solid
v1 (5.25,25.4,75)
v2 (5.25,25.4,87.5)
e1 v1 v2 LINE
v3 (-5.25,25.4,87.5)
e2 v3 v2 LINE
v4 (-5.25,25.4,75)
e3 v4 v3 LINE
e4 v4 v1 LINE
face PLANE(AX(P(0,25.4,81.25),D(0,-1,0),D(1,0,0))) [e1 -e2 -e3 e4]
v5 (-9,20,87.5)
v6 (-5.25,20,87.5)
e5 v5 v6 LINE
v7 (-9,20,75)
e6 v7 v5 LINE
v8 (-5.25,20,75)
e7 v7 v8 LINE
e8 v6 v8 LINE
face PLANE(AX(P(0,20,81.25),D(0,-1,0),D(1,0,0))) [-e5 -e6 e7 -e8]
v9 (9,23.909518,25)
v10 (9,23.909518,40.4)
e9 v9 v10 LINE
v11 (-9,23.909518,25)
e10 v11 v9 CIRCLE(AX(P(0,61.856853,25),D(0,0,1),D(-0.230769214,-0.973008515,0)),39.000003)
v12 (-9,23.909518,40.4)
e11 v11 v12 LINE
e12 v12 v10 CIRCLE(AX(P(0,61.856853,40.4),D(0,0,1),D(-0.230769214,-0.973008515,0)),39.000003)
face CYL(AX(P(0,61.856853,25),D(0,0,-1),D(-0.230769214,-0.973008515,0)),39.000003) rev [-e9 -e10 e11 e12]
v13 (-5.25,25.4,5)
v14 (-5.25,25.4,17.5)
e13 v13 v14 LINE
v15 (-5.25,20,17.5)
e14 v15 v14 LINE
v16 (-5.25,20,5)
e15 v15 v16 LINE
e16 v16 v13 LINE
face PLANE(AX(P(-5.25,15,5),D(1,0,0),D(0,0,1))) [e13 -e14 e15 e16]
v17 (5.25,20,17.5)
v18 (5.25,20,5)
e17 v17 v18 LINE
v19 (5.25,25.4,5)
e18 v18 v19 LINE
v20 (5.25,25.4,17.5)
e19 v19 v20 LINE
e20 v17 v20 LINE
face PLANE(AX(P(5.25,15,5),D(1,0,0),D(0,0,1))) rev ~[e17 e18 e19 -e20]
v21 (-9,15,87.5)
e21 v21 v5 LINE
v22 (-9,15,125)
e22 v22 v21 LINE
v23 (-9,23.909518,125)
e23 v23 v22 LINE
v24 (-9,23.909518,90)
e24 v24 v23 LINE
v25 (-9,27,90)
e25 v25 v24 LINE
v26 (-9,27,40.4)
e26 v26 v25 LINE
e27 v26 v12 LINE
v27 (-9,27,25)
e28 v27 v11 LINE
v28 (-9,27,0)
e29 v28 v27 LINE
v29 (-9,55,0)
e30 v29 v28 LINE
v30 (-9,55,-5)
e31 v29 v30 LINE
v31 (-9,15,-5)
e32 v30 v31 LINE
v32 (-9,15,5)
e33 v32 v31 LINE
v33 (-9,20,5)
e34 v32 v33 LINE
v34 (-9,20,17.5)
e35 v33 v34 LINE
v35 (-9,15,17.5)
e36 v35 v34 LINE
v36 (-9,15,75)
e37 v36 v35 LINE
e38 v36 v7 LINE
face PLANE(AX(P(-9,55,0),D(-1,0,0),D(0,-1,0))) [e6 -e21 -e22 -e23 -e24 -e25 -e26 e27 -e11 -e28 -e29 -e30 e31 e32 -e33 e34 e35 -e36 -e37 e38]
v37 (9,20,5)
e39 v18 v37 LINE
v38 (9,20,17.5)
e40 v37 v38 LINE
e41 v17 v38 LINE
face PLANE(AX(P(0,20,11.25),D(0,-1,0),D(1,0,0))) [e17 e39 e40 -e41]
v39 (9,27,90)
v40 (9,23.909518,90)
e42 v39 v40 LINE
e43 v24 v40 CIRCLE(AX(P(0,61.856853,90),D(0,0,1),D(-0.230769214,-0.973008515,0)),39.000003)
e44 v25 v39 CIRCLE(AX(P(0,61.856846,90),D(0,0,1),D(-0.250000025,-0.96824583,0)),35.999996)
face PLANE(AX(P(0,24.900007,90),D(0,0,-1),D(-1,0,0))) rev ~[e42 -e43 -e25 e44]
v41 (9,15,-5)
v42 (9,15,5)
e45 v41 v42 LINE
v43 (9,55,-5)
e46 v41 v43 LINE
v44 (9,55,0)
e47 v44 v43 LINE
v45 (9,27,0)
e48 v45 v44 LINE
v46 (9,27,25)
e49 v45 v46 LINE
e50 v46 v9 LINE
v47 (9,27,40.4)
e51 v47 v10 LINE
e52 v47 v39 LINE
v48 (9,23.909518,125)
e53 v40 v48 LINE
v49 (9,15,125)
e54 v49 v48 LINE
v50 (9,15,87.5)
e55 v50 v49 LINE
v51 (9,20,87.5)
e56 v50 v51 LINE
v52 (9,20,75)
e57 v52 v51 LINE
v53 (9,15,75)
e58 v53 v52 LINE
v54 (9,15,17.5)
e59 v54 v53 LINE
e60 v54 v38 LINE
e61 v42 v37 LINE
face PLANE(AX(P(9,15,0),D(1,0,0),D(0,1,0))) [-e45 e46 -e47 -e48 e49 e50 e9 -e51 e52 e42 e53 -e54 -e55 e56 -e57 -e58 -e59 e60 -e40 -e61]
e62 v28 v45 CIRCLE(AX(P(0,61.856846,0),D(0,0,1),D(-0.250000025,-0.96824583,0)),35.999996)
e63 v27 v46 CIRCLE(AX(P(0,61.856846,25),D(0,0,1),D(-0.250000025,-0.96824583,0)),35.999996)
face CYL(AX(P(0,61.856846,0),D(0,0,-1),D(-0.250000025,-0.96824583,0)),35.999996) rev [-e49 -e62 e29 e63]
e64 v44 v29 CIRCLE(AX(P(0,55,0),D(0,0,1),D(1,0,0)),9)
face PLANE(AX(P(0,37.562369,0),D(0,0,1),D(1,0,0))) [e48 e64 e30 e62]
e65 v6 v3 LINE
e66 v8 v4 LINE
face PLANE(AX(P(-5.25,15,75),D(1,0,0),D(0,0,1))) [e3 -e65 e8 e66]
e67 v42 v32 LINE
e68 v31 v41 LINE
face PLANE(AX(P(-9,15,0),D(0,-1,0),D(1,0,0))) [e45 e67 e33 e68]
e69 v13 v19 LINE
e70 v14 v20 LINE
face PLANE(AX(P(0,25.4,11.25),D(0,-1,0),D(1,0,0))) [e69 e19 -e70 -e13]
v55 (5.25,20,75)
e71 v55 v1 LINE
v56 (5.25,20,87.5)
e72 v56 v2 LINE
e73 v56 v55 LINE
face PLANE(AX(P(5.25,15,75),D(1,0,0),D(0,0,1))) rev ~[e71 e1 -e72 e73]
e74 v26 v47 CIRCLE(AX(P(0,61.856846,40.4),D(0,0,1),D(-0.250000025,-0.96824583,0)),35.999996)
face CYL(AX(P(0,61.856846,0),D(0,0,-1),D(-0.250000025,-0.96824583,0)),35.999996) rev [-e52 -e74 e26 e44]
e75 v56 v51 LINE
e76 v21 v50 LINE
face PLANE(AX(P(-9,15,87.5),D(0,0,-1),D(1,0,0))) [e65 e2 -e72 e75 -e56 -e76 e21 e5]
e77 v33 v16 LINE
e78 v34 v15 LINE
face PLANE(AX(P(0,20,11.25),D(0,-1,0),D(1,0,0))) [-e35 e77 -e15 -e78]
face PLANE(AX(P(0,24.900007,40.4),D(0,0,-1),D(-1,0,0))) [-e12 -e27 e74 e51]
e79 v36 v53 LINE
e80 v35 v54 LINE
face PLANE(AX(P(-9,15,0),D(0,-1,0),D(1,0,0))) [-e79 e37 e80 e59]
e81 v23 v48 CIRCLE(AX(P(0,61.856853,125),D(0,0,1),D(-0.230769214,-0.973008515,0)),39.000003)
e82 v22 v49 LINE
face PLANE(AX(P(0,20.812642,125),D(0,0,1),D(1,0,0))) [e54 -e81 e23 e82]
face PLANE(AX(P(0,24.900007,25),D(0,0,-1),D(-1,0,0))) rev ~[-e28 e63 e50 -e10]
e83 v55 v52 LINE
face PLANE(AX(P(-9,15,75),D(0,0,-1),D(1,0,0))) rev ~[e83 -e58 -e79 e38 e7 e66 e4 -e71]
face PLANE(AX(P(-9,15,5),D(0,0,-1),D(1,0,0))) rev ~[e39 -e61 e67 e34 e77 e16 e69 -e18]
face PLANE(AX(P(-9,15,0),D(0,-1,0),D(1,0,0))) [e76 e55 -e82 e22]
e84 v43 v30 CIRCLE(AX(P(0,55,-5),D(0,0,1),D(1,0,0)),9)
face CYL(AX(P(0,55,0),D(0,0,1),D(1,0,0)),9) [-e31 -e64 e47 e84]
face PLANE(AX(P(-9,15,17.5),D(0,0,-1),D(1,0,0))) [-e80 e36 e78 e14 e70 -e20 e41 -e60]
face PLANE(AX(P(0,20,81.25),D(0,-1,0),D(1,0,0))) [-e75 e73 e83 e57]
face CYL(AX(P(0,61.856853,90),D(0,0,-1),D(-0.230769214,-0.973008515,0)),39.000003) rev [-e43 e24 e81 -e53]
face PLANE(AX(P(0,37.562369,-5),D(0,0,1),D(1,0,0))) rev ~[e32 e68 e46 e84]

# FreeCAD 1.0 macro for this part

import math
import FreeCAD as App
import Part
import Sketcher
Q = App.Units.Quantity


def add_polygon(sketch, points):
    """Adds a closed chain of lines whose ends are joined by coincident constraints."""
    first, n = sketch.GeometryCount, len(points)
    for a, b in zip(points, points[1:] + points[:1]):
        sketch.addGeometry(Part.LineSegment(App.Vector(*a, 0), App.Vector(*b, 0)), False)
    for i in range(n):
        sketch.addConstraint(Sketcher.Constraint("Coincident", first + i, 2, first + (i + 1) % n, 1))

doc = App.newDocument("Part")
params = doc.addObject("Spreadsheet::Sheet", "Params")
for row, (alias, value) in enumerate([
    ("sketch1_width", "18 mm"),
    ("sketch1_height", "12 mm"),
    ("pad1_length", "125 mm"),
    ("sketch2_radius", "9 mm"),
    ("sketch2_height", "40 mm"),
    ("pad2_length", "5 mm"),
    ("sketch3_width", "10.5 mm"),
    ("sketch3_height", "12.5 mm"),
    ("pocket1_length", "10.4 mm"),
    ("pocket2_length", "15.4 mm"),
    ("pocket3_length", "35 mm"),
    ("sketch6_width", "18 mm"),
    ("sketch6_height", "12.5 mm"),
    ("pocket4_length", "5 mm"),
], start=1):
    params.set(f"A{row}", alias)
    params.set(f"B{row}", "=" + value)
    params.setAlias(f"B{row}", alias)

body = doc.addObject("PartDesign::Body", "Body")

# Sketch on XY plane
sketch1 = body.newObject("Sketcher::SketchObject", "Sketch")
sketch1.AttachmentSupport = (doc.getObject("XY_Plane"), [""])
sketch1.MapMode = "FlatFace"
sketch1.addGeometry([
    Part.LineSegment(App.Vector(-9, 15, 0), App.Vector(9, 15, 0)),
    Part.LineSegment(App.Vector(9, 15, 0), App.Vector(9, 27, 0)),
    Part.ArcOfCircle(Part.Circle(App.Vector(0, 62, 0), App.Vector(0, 0, 1), 36), math.radians(-104), math.radians(-76)),
    Part.LineSegment(App.Vector(-9, 27, 0), App.Vector(-9, 15, 0)),
], False)
sketch1.addConstraint([
    Sketcher.Constraint("Coincident", 0, 2, 1, 1),
    Sketcher.Constraint("Coincident", 1, 2, 2, 2),
    Sketcher.Constraint("Coincident", 2, 1, 3, 1),
    Sketcher.Constraint("Coincident", 3, 2, 0, 1),
    Sketcher.Constraint("Horizontal", 0),
    Sketcher.Constraint("Vertical", 1),
    Sketcher.Constraint("Vertical", 3),
    Sketcher.Constraint("Symmetric", 1, 2, 2, 1, -2),
    Sketcher.Constraint("DistanceX", 0, 1, 0, 2, Q("18 mm")),
    Sketcher.Constraint("DistanceY", 1, 1, 1, 2, Q("12 mm")),
    Sketcher.Constraint("DistanceY", -1, 1, 0, 2, Q("15 mm")),
    Sketcher.Constraint("Radius", 2, Q("35.999996 mm")),
])
sketch1.setExpression("Constraints[8]", "Params.sketch1_width")
sketch1.setExpression("Constraints[9]", "Params.sketch1_height")
pad1 = body.newObject("PartDesign::Pad", "Pad")
pad1.Profile = sketch1
pad1.setExpression("Length", "Params.pad1_length")

# Sketch on XY plane
sketch2 = body.newObject("Sketcher::SketchObject", "Sketch001")
sketch2.AttachmentSupport = (doc.getObject("XY_Plane"), [""])
sketch2.MapMode = "FlatFace"
sketch2.addGeometry([
    Part.LineSegment(App.Vector(-9, 15, 0), App.Vector(9, 15, 0)),
    Part.LineSegment(App.Vector(9, 15, 0), App.Vector(9, 55, 0)),
    Part.ArcOfCircle(Part.Circle(App.Vector(0, 55, 0), App.Vector(0, 0, 1), 9), math.radians(0), math.radians(180)),
    Part.LineSegment(App.Vector(-9, 55, 0), App.Vector(-9, 15, 0)),
], False)
sketch2.addConstraint([
    Sketcher.Constraint("Coincident", 0, 2, 1, 1),
    Sketcher.Constraint("Tangent", 1, 2, 2, 1),
    Sketcher.Constraint("Tangent", 2, 2, 3, 1),
    Sketcher.Constraint("Coincident", 3, 2, 0, 1),
    Sketcher.Constraint("Horizontal", 0),
    Sketcher.Constraint("Vertical", 1),
    Sketcher.Constraint("Vertical", 3),
    Sketcher.Constraint("PointOnObject", 2, 3, -2),
    Sketcher.Constraint("Radius", 2, Q("9 mm")),
    Sketcher.Constraint("DistanceY", 1, 1, 1, 2, Q("40 mm")),
    Sketcher.Constraint("DistanceY", -1, 1, 2, 3, Q("55 mm")),
])
sketch2.setExpression("Constraints[8]", "Params.sketch2_radius")
sketch2.setExpression("Constraints[9]", "Params.sketch2_height")
pad2 = body.newObject("PartDesign::Pad", "Pad001")
pad2.Profile = sketch2
pad2.setExpression("Length", "Params.pad2_length")
pad2.Reversed = True

# Sketch on XZ plane
sketch3 = body.newObject("Sketcher::SketchObject", "Sketch002")
sketch3.AttachmentSupport = (doc.getObject("XZ_Plane"), [""])
sketch3.MapMode = "FlatFace"
sketch3.AttachmentOffset = App.Placement(App.Vector(0, 0, -15), App.Rotation())
add_polygon(sketch3, [(-5, 18), (-5, 5), (5, 5), (5, 18)])  # lines 0-3
add_polygon(sketch3, [(-5, 88), (-5, 75), (5, 75), (5, 88)])  # lines 4-7
sketch3.addConstraint([
    Sketcher.Constraint("Vertical", 0),
    Sketcher.Constraint("Horizontal", 1),
    Sketcher.Constraint("Vertical", 2),
    Sketcher.Constraint("Horizontal", 3),
    Sketcher.Constraint("Vertical", 4),
    Sketcher.Constraint("Horizontal", 5),
    Sketcher.Constraint("Vertical", 6),
    Sketcher.Constraint("Horizontal", 7),
    Sketcher.Constraint("Vertical", 3, 2, 4, 2),
    Sketcher.Constraint("Vertical", 2, 2, 5, 2),
    Sketcher.Constraint("Equal", 2, 4),
    Sketcher.Constraint("DistanceX", 1, 1, 1, 2, Q("10.5 mm")),
    Sketcher.Constraint("DistanceY", 0, 2, 0, 1, Q("12.5 mm")),
    Sketcher.Constraint("DistanceY", -1, 1, 0, 2, Q("5 mm")),
    Sketcher.Constraint("DistanceY", -1, 1, 4, 2, Q("75 mm")),
    Sketcher.Constraint("DistanceX", 0, 2, -1, 1, Q("5.25 mm")),
])
sketch3.setExpression("Constraints[19]", "Params.sketch3_width")
sketch3.setExpression("Constraints[20]", "Params.sketch3_height")
pocket1 = body.newObject("PartDesign::Pocket", "Pocket")
pocket1.Profile = sketch3
pocket1.setExpression("Length", "Params.pocket1_length")

# Sketch on XY plane
sketch4 = body.newObject("Sketcher::SketchObject", "Sketch003")
sketch4.AttachmentSupport = (doc.getObject("XY_Plane"), [""])
sketch4.MapMode = "FlatFace"
sketch4.AttachmentOffset = App.Placement(App.Vector(0, 0, 25), App.Rotation())
sketch4.addGeometry([
    Part.ArcOfCircle(Part.Circle(App.Vector(0, 61.9, 0), App.Vector(0, 0, 1), 36), math.radians(-104), math.radians(-76)),
    Part.LineSegment(App.Vector(-9, 27, 0), App.Vector(-9, 23.9, 0)),
    Part.ArcOfCircle(Part.Circle(App.Vector(0, 61.9, 0), App.Vector(0, 0, 1), 39), math.radians(-103), math.radians(-77)),
    Part.LineSegment(App.Vector(9, 23.9, 0), App.Vector(9, 27, 0)),
], False)
sketch4.addConstraint([
    Sketcher.Constraint("Coincident", 0, 1, 1, 1),
    Sketcher.Constraint("Coincident", 1, 2, 2, 1),
    Sketcher.Constraint("Coincident", 2, 2, 3, 1),
    Sketcher.Constraint("Coincident", 3, 2, 0, 2),
    Sketcher.Constraint("Vertical", 1),
    Sketcher.Constraint("Vertical", 3),
    Sketcher.Constraint("Coincident", 2, 3, 0, 3),
    Sketcher.Constraint("Symmetric", 1, 2, 2, 2, -2),
    Sketcher.Constraint("DistanceX", 0, 1, -1, 1, Q("9 mm")),
    Sketcher.Constraint("DistanceY", -1, 1, 0, 1, Q("27 mm")),
    Sketcher.Constraint("Radius", 0, Q("35.999996 mm")),
    Sketcher.Constraint("Radius", 2, Q("39.000003 mm")),
])
pocket2 = body.newObject("PartDesign::Pocket", "Pocket001")
pocket2.Profile = sketch4
pocket2.setExpression("Length", "Params.pocket2_length")
pocket2.Reversed = True

# Sketch on XY plane
sketch5 = body.newObject("Sketcher::SketchObject", "Sketch004")
sketch5.AttachmentSupport = (doc.getObject("XY_Plane"), [""])
sketch5.MapMode = "FlatFace"
sketch5.AttachmentOffset = App.Placement(App.Vector(0, 0, 90), App.Rotation())
sketch5.addGeometry([
    Part.ArcOfCircle(Part.Circle(App.Vector(0, 61.9, 0), App.Vector(0, 0, 1), 36), math.radians(-104), math.radians(-76)),
    Part.LineSegment(App.Vector(-9, 27, 0), App.Vector(-9, 23.9, 0)),
    Part.ArcOfCircle(Part.Circle(App.Vector(0, 61.9, 0), App.Vector(0, 0, 1), 39), math.radians(-103), math.radians(-77)),
    Part.LineSegment(App.Vector(9, 23.9, 0), App.Vector(9, 27, 0)),
], False)
sketch5.addConstraint([
    Sketcher.Constraint("Coincident", 0, 1, 1, 1),
    Sketcher.Constraint("Coincident", 1, 2, 2, 1),
    Sketcher.Constraint("Coincident", 2, 2, 3, 1),
    Sketcher.Constraint("Coincident", 3, 2, 0, 2),
    Sketcher.Constraint("Vertical", 1),
    Sketcher.Constraint("Vertical", 3),
    Sketcher.Constraint("Coincident", 2, 3, 0, 3),
    Sketcher.Constraint("Symmetric", 1, 2, 2, 2, -2),
    Sketcher.Constraint("DistanceX", 0, 1, -1, 1, Q("9 mm")),
    Sketcher.Constraint("DistanceY", -1, 1, 0, 1, Q("27 mm")),
    Sketcher.Constraint("Radius", 0, Q("35.999996 mm")),
    Sketcher.Constraint("Radius", 2, Q("39.000003 mm")),
])
pocket3 = body.newObject("PartDesign::Pocket", "Pocket002")
pocket3.Profile = sketch5
pocket3.setExpression("Length", "Params.pocket3_length")
pocket3.Reversed = True

# Sketch on XZ plane
sketch6 = body.newObject("Sketcher::SketchObject", "Sketch005")
sketch6.AttachmentSupport = (doc.getObject("XZ_Plane"), [""])
sketch6.MapMode = "FlatFace"
sketch6.AttachmentOffset = App.Placement(App.Vector(0, 0, -15), App.Rotation())
add_polygon(sketch6, [(-9, 18), (-9, 5), (9, 5), (9, 18)])  # lines 0-3
add_polygon(sketch6, [(-9, 88), (-9, 75), (9, 75), (9, 88)])  # lines 4-7
sketch6.addConstraint([
    Sketcher.Constraint("Vertical", 0),
    Sketcher.Constraint("Horizontal", 1),
    Sketcher.Constraint("Vertical", 2),
    Sketcher.Constraint("Horizontal", 3),
    Sketcher.Constraint("Vertical", 4),
    Sketcher.Constraint("Horizontal", 5),
    Sketcher.Constraint("Vertical", 6),
    Sketcher.Constraint("Horizontal", 7),
    Sketcher.Constraint("Vertical", 3, 2, 4, 2),
    Sketcher.Constraint("Vertical", 2, 2, 5, 2),
    Sketcher.Constraint("Equal", 2, 4),
    Sketcher.Constraint("DistanceX", 1, 1, 1, 2, Q("18 mm")),
    Sketcher.Constraint("DistanceY", 0, 2, 0, 1, Q("12.5 mm")),
    Sketcher.Constraint("DistanceX", 0, 2, -1, 1, Q("9 mm")),
    Sketcher.Constraint("DistanceY", -1, 1, 0, 2, Q("5 mm")),
    Sketcher.Constraint("DistanceY", -1, 1, 4, 2, Q("75 mm")),
])
sketch6.setExpression("Constraints[19]", "Params.sketch6_width")
sketch6.setExpression("Constraints[20]", "Params.sketch6_height")
pocket4 = body.newObject("PartDesign::Pocket", "Pocket003")
pocket4.Profile = sketch6
pocket4.setExpression("Length", "Params.pocket4_length")

doc.recompute()
